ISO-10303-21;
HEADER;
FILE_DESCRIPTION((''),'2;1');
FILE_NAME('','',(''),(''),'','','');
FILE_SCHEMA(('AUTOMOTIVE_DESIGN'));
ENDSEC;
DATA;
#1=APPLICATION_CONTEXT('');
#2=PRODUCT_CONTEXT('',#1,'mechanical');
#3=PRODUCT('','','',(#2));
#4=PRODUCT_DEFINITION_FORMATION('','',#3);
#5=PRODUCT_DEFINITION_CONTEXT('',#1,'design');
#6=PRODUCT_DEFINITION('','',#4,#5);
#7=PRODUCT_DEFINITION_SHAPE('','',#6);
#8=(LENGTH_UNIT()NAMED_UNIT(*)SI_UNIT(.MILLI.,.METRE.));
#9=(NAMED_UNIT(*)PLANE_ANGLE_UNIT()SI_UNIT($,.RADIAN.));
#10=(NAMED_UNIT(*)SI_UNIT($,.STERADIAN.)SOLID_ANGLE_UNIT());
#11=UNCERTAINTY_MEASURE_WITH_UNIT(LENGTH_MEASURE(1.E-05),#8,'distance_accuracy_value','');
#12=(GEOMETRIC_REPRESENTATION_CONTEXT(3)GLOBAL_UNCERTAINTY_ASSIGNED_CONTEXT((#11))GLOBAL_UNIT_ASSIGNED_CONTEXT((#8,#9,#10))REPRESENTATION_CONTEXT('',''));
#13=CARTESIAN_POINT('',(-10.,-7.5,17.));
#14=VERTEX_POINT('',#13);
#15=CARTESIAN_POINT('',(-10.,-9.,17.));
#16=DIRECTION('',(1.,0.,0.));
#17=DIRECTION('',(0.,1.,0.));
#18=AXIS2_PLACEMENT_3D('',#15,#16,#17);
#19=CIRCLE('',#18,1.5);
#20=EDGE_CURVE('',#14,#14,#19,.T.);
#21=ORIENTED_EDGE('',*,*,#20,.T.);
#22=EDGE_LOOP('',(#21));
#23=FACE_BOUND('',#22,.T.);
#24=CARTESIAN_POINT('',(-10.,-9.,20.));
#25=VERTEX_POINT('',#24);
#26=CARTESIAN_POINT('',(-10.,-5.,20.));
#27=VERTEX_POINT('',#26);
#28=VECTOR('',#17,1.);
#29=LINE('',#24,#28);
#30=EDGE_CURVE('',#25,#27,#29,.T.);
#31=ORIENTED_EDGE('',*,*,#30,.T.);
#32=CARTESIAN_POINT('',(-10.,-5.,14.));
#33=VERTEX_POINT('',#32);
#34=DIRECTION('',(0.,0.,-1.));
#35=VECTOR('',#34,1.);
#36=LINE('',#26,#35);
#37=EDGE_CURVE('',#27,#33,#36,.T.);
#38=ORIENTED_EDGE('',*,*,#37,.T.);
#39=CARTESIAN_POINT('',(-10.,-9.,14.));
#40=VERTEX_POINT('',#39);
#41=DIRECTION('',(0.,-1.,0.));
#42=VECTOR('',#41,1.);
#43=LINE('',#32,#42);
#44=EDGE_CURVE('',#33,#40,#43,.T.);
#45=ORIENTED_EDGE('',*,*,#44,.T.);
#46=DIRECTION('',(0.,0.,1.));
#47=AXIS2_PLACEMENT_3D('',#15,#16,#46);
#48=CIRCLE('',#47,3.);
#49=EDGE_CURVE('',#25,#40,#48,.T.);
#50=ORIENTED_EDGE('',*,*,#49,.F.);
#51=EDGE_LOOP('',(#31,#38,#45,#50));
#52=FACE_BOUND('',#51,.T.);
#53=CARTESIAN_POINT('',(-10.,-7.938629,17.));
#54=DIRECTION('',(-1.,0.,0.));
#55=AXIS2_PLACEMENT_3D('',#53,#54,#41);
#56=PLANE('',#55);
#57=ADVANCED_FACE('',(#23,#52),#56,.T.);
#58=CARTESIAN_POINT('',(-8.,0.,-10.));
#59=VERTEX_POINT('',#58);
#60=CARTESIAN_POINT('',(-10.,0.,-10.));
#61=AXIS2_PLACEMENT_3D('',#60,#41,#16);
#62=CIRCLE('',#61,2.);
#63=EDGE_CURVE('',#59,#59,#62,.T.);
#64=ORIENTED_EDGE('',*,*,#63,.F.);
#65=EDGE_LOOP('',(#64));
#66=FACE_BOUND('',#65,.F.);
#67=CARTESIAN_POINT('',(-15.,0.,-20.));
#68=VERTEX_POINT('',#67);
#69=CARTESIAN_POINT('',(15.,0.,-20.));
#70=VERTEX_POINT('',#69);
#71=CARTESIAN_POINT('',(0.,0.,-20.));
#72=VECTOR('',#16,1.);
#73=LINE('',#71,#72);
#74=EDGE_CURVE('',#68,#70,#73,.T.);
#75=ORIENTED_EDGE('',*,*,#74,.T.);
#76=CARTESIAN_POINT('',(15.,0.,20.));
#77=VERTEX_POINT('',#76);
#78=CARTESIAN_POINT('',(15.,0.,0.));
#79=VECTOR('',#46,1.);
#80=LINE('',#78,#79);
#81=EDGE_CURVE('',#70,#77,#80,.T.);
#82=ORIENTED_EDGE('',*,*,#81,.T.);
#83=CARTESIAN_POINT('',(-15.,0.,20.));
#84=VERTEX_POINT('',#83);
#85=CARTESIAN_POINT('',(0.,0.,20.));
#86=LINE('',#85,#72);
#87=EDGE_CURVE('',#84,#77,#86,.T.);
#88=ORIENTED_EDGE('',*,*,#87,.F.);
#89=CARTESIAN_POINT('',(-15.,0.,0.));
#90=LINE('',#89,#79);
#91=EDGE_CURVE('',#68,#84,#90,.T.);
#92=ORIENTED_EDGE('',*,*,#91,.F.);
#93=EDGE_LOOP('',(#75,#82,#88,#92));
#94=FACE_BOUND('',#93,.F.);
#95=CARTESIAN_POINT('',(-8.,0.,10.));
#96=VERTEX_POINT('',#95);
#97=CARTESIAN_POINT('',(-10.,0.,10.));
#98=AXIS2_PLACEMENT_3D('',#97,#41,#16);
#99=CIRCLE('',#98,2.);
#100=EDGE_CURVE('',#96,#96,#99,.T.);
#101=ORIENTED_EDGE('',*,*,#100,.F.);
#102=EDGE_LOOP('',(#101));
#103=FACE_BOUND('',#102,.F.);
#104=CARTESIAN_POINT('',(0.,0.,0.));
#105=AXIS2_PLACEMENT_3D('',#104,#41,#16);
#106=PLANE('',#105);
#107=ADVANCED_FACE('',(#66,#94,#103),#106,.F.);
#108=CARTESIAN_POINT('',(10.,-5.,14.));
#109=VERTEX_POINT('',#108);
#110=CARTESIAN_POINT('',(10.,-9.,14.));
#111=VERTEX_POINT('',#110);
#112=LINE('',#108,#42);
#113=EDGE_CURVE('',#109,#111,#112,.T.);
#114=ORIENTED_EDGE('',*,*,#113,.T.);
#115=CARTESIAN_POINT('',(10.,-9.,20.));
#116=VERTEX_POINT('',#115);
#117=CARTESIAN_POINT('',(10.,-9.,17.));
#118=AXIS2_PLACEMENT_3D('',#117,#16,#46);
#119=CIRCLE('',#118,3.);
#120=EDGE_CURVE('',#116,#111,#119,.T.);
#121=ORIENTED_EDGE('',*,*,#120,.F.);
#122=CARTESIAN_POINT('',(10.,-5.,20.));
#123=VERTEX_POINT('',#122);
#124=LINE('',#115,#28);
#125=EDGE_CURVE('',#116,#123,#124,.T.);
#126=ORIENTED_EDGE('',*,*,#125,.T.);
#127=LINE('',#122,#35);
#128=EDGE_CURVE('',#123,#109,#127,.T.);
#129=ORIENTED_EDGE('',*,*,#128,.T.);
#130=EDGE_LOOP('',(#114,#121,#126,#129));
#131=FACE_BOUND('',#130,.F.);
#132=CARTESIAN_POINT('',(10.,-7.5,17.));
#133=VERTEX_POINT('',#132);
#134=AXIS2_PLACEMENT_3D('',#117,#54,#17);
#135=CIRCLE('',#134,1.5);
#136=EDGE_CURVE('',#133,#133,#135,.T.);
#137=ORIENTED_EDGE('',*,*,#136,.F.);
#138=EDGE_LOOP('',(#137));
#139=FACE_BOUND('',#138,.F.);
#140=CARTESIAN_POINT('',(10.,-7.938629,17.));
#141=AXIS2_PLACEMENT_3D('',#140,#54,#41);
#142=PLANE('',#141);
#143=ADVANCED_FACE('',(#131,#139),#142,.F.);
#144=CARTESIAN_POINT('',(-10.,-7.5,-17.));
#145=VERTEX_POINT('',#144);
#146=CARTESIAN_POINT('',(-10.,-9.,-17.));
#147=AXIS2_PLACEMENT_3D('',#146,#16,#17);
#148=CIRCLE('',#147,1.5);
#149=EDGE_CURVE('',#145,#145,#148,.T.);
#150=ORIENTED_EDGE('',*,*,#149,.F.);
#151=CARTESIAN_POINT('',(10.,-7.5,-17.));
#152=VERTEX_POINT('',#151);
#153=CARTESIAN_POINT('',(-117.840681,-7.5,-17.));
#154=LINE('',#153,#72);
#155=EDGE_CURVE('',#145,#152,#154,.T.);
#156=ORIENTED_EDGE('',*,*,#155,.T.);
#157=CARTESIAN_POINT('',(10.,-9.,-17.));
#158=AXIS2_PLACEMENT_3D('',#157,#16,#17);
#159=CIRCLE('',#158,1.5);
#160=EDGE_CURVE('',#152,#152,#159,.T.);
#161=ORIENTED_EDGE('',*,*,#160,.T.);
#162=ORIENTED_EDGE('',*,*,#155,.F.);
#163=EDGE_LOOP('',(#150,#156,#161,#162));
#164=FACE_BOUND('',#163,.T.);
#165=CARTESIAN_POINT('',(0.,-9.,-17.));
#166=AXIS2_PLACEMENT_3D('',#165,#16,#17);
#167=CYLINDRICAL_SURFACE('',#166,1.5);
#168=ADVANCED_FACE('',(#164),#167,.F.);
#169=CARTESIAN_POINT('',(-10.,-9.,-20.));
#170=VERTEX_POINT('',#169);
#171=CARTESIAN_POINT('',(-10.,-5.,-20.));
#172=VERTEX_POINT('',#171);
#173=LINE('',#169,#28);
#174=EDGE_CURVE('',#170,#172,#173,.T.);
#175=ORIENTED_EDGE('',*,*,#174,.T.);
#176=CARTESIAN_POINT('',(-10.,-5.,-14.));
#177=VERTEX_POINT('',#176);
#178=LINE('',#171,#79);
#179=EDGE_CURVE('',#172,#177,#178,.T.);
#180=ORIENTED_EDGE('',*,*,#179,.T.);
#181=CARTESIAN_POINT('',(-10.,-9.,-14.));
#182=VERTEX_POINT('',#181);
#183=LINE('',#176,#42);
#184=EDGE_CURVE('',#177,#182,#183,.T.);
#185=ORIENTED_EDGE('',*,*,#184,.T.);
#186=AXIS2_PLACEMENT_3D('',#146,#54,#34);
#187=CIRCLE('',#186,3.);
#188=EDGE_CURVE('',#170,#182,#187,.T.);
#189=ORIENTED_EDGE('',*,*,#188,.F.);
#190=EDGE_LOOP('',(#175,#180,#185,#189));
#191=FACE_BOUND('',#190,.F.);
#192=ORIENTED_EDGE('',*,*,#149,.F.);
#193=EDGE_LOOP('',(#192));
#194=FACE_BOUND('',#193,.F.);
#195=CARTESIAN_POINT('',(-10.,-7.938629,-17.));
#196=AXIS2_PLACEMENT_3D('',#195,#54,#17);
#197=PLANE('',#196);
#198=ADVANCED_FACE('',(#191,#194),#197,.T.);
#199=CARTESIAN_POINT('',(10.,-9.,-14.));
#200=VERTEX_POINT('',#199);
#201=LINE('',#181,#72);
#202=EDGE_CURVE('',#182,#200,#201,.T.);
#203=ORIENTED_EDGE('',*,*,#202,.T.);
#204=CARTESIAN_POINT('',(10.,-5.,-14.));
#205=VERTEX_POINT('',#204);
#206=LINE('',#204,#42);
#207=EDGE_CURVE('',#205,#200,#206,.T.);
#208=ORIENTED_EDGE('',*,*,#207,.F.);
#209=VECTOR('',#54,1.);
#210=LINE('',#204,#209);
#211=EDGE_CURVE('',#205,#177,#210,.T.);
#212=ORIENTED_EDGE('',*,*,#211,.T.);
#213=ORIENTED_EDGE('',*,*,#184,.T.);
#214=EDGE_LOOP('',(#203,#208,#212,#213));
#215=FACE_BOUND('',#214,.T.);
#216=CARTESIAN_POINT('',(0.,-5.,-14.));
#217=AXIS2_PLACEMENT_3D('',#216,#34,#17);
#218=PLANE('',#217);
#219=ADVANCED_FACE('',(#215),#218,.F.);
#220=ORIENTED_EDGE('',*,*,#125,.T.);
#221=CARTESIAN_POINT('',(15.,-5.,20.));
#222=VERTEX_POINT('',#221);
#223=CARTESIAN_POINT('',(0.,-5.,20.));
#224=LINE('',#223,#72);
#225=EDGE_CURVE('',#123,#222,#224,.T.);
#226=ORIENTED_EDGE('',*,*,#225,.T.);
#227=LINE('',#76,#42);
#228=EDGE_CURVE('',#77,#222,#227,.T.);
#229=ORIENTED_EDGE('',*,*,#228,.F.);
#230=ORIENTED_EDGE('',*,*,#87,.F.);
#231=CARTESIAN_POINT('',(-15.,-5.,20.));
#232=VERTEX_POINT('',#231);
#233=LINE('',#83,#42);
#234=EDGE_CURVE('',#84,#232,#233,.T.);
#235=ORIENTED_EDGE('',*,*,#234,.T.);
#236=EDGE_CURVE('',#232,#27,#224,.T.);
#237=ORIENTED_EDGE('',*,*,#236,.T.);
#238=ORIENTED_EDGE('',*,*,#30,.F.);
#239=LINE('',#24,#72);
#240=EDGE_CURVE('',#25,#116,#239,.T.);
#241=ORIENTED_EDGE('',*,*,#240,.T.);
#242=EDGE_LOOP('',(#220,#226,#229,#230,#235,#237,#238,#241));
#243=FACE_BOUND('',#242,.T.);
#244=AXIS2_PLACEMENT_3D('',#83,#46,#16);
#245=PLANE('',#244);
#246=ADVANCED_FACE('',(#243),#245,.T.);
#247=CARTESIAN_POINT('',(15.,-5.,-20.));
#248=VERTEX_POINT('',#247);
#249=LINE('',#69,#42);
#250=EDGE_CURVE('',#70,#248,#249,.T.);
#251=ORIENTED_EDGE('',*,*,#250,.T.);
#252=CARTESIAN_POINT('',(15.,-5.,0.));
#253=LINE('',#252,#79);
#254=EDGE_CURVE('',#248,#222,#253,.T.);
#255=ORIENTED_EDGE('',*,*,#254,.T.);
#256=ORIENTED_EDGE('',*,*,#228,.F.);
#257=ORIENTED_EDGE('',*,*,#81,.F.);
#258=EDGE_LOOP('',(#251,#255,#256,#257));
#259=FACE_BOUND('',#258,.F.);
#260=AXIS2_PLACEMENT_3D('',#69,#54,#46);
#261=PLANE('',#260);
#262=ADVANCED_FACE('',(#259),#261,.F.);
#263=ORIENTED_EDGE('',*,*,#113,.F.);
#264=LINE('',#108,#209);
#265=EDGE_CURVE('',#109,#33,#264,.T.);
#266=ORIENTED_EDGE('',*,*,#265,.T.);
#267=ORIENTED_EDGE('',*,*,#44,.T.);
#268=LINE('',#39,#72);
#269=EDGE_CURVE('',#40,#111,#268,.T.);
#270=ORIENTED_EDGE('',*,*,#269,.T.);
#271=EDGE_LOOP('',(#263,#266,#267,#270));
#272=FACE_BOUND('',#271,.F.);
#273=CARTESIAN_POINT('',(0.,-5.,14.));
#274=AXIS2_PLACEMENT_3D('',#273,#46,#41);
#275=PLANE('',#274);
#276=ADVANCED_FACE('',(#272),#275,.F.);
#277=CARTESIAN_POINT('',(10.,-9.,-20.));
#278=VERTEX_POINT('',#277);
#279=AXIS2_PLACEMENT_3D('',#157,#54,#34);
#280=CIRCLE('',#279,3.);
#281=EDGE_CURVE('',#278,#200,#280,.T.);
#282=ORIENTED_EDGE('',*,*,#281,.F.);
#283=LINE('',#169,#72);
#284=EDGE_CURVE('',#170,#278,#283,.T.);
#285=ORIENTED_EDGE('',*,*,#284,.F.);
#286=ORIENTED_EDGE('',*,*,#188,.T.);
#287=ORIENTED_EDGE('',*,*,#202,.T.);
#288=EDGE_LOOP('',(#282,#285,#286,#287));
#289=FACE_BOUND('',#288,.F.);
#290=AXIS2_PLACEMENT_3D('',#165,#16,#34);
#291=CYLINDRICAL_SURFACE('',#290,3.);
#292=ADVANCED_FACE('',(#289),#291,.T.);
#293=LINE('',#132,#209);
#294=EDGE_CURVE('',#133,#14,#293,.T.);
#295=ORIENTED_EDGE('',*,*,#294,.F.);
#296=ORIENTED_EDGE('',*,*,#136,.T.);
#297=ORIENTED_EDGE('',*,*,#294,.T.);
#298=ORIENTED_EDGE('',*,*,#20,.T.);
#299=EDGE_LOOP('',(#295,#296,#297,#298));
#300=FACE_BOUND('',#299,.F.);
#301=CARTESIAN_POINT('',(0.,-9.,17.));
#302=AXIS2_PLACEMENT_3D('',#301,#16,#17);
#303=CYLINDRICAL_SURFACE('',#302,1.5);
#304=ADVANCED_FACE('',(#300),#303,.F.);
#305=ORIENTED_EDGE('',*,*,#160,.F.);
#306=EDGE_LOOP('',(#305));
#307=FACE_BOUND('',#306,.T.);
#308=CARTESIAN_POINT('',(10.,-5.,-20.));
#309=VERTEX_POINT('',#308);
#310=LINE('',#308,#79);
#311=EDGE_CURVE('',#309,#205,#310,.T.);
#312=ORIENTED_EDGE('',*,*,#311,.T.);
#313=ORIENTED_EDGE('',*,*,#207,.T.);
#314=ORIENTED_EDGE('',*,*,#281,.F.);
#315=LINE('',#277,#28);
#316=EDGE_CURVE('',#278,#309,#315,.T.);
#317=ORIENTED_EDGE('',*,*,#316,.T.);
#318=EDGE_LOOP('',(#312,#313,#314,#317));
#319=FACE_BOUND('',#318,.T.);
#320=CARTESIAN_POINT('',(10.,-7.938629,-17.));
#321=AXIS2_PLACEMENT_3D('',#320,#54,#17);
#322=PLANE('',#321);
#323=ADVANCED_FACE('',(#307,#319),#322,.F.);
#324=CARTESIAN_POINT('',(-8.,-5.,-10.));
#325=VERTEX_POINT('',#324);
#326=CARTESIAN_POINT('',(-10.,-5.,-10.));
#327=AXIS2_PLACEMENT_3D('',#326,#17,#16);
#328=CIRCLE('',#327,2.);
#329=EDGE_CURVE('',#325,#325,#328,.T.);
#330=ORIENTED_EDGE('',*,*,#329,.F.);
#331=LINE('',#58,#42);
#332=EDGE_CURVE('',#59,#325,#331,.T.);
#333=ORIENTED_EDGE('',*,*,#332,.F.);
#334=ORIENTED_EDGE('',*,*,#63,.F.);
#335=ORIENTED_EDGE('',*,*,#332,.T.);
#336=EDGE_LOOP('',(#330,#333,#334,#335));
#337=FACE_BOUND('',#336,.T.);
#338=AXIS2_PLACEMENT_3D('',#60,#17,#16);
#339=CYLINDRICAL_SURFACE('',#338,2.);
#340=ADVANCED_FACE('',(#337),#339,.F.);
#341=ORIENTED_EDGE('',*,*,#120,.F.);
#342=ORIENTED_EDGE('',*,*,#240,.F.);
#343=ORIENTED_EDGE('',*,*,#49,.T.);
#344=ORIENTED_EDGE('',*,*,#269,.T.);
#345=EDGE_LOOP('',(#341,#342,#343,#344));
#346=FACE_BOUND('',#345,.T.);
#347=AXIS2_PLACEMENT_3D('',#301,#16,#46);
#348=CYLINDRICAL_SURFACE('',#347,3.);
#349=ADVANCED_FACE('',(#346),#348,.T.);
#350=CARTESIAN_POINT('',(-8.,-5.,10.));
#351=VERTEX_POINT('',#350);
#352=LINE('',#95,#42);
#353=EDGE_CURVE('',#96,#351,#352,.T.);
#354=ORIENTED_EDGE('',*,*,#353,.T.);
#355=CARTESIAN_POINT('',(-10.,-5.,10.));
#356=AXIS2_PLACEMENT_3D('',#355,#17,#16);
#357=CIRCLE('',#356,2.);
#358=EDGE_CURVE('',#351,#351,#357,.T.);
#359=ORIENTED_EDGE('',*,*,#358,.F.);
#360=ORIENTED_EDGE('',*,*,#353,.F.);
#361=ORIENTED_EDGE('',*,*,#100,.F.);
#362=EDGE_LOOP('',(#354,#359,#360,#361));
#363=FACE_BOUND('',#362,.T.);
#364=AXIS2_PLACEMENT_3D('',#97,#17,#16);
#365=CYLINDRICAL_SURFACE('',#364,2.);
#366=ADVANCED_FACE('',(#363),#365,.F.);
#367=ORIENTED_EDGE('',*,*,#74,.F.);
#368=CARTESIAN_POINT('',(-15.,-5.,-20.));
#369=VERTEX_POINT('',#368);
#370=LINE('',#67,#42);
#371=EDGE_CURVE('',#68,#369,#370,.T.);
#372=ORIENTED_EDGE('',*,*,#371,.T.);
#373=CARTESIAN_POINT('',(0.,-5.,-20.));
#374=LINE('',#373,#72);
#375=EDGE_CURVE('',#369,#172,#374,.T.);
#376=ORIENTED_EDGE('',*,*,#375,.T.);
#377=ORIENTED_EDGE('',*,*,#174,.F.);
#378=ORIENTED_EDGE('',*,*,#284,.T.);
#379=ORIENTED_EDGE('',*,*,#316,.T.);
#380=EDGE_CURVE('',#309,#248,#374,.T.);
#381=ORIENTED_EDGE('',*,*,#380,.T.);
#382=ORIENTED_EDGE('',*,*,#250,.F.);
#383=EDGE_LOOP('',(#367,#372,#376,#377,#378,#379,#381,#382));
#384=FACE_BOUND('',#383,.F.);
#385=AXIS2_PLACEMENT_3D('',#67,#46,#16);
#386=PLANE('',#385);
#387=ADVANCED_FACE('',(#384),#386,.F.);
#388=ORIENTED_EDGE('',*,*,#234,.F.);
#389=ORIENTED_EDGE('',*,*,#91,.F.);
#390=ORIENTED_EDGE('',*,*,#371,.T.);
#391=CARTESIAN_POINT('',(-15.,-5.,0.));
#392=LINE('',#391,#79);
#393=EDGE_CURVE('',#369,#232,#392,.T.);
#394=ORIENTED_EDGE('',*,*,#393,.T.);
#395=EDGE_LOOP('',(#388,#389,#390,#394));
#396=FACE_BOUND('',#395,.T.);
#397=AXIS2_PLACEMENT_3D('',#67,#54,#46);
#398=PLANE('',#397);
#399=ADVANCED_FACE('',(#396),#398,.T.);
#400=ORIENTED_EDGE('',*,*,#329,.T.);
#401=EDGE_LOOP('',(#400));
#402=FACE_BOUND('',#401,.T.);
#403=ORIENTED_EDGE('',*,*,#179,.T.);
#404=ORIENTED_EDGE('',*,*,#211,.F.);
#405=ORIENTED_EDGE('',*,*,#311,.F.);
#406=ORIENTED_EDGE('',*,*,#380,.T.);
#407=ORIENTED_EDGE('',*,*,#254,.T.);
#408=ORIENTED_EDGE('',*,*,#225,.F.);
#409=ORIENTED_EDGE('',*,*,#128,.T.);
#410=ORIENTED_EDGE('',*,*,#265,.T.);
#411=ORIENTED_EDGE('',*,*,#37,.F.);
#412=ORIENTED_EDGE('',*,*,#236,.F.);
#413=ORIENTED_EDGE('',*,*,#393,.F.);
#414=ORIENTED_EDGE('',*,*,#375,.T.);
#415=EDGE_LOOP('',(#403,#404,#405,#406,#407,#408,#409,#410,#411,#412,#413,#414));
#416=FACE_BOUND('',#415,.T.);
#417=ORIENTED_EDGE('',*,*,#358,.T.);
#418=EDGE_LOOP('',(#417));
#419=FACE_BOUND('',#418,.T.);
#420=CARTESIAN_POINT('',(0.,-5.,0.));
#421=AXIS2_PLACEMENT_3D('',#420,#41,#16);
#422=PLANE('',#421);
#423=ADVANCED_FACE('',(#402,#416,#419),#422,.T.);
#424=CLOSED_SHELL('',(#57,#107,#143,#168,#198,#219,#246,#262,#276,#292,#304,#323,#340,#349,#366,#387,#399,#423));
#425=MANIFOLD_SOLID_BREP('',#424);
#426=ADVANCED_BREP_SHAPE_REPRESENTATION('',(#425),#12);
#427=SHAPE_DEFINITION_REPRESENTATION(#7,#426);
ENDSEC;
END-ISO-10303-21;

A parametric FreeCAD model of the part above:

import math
import FreeCAD as App
import Part
import Sketcher

V = App.Vector


def add_polygon(sketch, points):
    """Adds a closed chain of lines whose ends are joined by coincident constraints."""
    first, n = sketch.GeometryCount, len(points)
    for a, b in zip(points, points[1:] + points[:1]):
        sketch.addGeometry(Part.LineSegment(App.Vector(*a, 0), App.Vector(*b, 0)), False)
    for i in range(n):
        sketch.addConstraint(Sketcher.Constraint("Coincident", first + i, 2, first + (i + 1) % n, 1))

doc = App.newDocument("Part")
body = doc.addObject("PartDesign::Body", "Body")

# Sketch on XZ plane
sketch1 = doc.addObject("Sketcher::SketchObject", "Sketch")
body.addObject(sketch1)
sketch1.AttachmentSupport = (doc.XZ_Plane, [""])
sketch1.MapMode = "FlatFace"
add_polygon(sketch1, [(-15, 20), (-15, -20), (15, -20), (15, 20)])  # lines 0-3
sketch1.addConstraint([
    Sketcher.Constraint("Vertical", 0),
    Sketcher.Constraint("Horizontal", 1),
    Sketcher.Constraint("Vertical", 2),
    Sketcher.Constraint("Horizontal", 3),
    Sketcher.Constraint("Symmetric", 0, 2, 2, 2, -1, 1),
    Sketcher.Constraint("DistanceX", 1, 1, 1, 2, 30.0),
    Sketcher.Constraint("DistanceY", 0, 2, 0, 1, 40.0),
])
pad1 = doc.addObject("PartDesign::Pad", "Pad")
body.addObject(pad1)
pad1.Profile = sketch1
pad1.Length = 5

# Sketch on YZ plane
sketch2 = doc.addObject("Sketcher::SketchObject", "Sketch001")
body.addObject(sketch2)
sketch2.AttachmentSupport = (doc.YZ_Plane, [""])
sketch2.MapMode = "FlatFace"
sketch2.addGeometry([
    Part.LineSegment(V(-5, 20, 0), V(-9, 20, 0)),
    Part.ArcOfCircle(Part.Circle(V(-9, 17, 0), V(0, 0, 1), 3), math.radians(90), math.radians(270)),
    Part.LineSegment(V(-9, 14, 0), V(-5, 14, 0)),
    Part.LineSegment(V(-5, 14, 0), V(-5, 20, 0)),
], False)
sketch2.addConstraint([
    Sketcher.Constraint("Tangent", 0, 2, 1, 1),
    Sketcher.Constraint("Tangent", 1, 2, 2, 1),
    Sketcher.Constraint("Coincident", 2, 2, 3, 1),
    Sketcher.Constraint("Coincident", 3, 2, 0, 1),
    Sketcher.Constraint("Horizontal", 0),
    Sketcher.Constraint("Horizontal", 2),
    Sketcher.Constraint("Vertical", 3),
    Sketcher.Constraint("Radius", 1, 3.0),
    Sketcher.Constraint("DistanceX", 0, 2, 0, 1, 4.0),
    Sketcher.Constraint("DistanceX", 1, 3, -1, 1, 9.0),
    Sketcher.Constraint("DistanceY", -1, 1, 1, 3, 17.0),
])
pad2 = doc.addObject("PartDesign::Pad", "Pad001")
body.addObject(pad2)
pad2.Profile = sketch2
pad2.Length = 20
pad2.Midplane = True

# Sketch on YZ plane
sketch3 = doc.addObject("Sketcher::SketchObject", "Sketch002")
body.addObject(sketch3)
sketch3.AttachmentSupport = (doc.YZ_Plane, [""])
sketch3.MapMode = "FlatFace"
sketch3.addGeometry(Part.Circle(V(-9, 17, 0), V(0, 0, 1), 1.5), False)
sketch3.addConstraint([
    Sketcher.Constraint("Diameter", 0, 3.0),
    Sketcher.Constraint("DistanceX", 0, 3, -1, 1, 9.0),
    Sketcher.Constraint("DistanceY", -1, 1, 0, 3, 17.0),
])
pocket1 = doc.addObject("PartDesign::Pocket", "Pocket")
body.addObject(pocket1)
pocket1.Profile = sketch3
pocket1.Type = "ThroughAll"
pocket1.Midplane = True
doc.recompute()

mirrored = doc.addObject("PartDesign::Mirrored", "Mirrored")
body.addObject(mirrored)
mirrored.Originals = [pad2, pocket1]
mirrored.MirrorPlane = (doc.XY_Plane, [""])
body.Tip = mirrored

# Sketch on XZ plane
sketch4 = doc.addObject("Sketcher::SketchObject", "Sketch003")
body.addObject(sketch4)
sketch4.AttachmentSupport = (doc.XZ_Plane, [""])
sketch4.MapMode = "FlatFace"
sketch4.addGeometry([
    Part.Circle(V(-10, 10, 0), V(0, 0, 1), 2),
    Part.Circle(V(-10, -10, 0), V(0, 0, 1), 2),
], False)
sketch4.addConstraint([
    Sketcher.Constraint("Equal", 0, 1),
    Sketcher.Constraint("Symmetric", 0, 3, 1, 3, -1),
    Sketcher.Constraint("Diameter", 0, 4.0),
    Sketcher.Constraint("DistanceX", 0, 3, -1, 1, 10.0),
    Sketcher.Constraint("DistanceY", -1, 1, 0, 3, 10.0),
])
pocket2 = doc.addObject("PartDesign::Pocket", "Pocket001")
body.addObject(pocket2)
pocket2.Profile = sketch4
pocket2.Type = "ThroughAll"
pocket2.Reversed = True

doc.recompute()
